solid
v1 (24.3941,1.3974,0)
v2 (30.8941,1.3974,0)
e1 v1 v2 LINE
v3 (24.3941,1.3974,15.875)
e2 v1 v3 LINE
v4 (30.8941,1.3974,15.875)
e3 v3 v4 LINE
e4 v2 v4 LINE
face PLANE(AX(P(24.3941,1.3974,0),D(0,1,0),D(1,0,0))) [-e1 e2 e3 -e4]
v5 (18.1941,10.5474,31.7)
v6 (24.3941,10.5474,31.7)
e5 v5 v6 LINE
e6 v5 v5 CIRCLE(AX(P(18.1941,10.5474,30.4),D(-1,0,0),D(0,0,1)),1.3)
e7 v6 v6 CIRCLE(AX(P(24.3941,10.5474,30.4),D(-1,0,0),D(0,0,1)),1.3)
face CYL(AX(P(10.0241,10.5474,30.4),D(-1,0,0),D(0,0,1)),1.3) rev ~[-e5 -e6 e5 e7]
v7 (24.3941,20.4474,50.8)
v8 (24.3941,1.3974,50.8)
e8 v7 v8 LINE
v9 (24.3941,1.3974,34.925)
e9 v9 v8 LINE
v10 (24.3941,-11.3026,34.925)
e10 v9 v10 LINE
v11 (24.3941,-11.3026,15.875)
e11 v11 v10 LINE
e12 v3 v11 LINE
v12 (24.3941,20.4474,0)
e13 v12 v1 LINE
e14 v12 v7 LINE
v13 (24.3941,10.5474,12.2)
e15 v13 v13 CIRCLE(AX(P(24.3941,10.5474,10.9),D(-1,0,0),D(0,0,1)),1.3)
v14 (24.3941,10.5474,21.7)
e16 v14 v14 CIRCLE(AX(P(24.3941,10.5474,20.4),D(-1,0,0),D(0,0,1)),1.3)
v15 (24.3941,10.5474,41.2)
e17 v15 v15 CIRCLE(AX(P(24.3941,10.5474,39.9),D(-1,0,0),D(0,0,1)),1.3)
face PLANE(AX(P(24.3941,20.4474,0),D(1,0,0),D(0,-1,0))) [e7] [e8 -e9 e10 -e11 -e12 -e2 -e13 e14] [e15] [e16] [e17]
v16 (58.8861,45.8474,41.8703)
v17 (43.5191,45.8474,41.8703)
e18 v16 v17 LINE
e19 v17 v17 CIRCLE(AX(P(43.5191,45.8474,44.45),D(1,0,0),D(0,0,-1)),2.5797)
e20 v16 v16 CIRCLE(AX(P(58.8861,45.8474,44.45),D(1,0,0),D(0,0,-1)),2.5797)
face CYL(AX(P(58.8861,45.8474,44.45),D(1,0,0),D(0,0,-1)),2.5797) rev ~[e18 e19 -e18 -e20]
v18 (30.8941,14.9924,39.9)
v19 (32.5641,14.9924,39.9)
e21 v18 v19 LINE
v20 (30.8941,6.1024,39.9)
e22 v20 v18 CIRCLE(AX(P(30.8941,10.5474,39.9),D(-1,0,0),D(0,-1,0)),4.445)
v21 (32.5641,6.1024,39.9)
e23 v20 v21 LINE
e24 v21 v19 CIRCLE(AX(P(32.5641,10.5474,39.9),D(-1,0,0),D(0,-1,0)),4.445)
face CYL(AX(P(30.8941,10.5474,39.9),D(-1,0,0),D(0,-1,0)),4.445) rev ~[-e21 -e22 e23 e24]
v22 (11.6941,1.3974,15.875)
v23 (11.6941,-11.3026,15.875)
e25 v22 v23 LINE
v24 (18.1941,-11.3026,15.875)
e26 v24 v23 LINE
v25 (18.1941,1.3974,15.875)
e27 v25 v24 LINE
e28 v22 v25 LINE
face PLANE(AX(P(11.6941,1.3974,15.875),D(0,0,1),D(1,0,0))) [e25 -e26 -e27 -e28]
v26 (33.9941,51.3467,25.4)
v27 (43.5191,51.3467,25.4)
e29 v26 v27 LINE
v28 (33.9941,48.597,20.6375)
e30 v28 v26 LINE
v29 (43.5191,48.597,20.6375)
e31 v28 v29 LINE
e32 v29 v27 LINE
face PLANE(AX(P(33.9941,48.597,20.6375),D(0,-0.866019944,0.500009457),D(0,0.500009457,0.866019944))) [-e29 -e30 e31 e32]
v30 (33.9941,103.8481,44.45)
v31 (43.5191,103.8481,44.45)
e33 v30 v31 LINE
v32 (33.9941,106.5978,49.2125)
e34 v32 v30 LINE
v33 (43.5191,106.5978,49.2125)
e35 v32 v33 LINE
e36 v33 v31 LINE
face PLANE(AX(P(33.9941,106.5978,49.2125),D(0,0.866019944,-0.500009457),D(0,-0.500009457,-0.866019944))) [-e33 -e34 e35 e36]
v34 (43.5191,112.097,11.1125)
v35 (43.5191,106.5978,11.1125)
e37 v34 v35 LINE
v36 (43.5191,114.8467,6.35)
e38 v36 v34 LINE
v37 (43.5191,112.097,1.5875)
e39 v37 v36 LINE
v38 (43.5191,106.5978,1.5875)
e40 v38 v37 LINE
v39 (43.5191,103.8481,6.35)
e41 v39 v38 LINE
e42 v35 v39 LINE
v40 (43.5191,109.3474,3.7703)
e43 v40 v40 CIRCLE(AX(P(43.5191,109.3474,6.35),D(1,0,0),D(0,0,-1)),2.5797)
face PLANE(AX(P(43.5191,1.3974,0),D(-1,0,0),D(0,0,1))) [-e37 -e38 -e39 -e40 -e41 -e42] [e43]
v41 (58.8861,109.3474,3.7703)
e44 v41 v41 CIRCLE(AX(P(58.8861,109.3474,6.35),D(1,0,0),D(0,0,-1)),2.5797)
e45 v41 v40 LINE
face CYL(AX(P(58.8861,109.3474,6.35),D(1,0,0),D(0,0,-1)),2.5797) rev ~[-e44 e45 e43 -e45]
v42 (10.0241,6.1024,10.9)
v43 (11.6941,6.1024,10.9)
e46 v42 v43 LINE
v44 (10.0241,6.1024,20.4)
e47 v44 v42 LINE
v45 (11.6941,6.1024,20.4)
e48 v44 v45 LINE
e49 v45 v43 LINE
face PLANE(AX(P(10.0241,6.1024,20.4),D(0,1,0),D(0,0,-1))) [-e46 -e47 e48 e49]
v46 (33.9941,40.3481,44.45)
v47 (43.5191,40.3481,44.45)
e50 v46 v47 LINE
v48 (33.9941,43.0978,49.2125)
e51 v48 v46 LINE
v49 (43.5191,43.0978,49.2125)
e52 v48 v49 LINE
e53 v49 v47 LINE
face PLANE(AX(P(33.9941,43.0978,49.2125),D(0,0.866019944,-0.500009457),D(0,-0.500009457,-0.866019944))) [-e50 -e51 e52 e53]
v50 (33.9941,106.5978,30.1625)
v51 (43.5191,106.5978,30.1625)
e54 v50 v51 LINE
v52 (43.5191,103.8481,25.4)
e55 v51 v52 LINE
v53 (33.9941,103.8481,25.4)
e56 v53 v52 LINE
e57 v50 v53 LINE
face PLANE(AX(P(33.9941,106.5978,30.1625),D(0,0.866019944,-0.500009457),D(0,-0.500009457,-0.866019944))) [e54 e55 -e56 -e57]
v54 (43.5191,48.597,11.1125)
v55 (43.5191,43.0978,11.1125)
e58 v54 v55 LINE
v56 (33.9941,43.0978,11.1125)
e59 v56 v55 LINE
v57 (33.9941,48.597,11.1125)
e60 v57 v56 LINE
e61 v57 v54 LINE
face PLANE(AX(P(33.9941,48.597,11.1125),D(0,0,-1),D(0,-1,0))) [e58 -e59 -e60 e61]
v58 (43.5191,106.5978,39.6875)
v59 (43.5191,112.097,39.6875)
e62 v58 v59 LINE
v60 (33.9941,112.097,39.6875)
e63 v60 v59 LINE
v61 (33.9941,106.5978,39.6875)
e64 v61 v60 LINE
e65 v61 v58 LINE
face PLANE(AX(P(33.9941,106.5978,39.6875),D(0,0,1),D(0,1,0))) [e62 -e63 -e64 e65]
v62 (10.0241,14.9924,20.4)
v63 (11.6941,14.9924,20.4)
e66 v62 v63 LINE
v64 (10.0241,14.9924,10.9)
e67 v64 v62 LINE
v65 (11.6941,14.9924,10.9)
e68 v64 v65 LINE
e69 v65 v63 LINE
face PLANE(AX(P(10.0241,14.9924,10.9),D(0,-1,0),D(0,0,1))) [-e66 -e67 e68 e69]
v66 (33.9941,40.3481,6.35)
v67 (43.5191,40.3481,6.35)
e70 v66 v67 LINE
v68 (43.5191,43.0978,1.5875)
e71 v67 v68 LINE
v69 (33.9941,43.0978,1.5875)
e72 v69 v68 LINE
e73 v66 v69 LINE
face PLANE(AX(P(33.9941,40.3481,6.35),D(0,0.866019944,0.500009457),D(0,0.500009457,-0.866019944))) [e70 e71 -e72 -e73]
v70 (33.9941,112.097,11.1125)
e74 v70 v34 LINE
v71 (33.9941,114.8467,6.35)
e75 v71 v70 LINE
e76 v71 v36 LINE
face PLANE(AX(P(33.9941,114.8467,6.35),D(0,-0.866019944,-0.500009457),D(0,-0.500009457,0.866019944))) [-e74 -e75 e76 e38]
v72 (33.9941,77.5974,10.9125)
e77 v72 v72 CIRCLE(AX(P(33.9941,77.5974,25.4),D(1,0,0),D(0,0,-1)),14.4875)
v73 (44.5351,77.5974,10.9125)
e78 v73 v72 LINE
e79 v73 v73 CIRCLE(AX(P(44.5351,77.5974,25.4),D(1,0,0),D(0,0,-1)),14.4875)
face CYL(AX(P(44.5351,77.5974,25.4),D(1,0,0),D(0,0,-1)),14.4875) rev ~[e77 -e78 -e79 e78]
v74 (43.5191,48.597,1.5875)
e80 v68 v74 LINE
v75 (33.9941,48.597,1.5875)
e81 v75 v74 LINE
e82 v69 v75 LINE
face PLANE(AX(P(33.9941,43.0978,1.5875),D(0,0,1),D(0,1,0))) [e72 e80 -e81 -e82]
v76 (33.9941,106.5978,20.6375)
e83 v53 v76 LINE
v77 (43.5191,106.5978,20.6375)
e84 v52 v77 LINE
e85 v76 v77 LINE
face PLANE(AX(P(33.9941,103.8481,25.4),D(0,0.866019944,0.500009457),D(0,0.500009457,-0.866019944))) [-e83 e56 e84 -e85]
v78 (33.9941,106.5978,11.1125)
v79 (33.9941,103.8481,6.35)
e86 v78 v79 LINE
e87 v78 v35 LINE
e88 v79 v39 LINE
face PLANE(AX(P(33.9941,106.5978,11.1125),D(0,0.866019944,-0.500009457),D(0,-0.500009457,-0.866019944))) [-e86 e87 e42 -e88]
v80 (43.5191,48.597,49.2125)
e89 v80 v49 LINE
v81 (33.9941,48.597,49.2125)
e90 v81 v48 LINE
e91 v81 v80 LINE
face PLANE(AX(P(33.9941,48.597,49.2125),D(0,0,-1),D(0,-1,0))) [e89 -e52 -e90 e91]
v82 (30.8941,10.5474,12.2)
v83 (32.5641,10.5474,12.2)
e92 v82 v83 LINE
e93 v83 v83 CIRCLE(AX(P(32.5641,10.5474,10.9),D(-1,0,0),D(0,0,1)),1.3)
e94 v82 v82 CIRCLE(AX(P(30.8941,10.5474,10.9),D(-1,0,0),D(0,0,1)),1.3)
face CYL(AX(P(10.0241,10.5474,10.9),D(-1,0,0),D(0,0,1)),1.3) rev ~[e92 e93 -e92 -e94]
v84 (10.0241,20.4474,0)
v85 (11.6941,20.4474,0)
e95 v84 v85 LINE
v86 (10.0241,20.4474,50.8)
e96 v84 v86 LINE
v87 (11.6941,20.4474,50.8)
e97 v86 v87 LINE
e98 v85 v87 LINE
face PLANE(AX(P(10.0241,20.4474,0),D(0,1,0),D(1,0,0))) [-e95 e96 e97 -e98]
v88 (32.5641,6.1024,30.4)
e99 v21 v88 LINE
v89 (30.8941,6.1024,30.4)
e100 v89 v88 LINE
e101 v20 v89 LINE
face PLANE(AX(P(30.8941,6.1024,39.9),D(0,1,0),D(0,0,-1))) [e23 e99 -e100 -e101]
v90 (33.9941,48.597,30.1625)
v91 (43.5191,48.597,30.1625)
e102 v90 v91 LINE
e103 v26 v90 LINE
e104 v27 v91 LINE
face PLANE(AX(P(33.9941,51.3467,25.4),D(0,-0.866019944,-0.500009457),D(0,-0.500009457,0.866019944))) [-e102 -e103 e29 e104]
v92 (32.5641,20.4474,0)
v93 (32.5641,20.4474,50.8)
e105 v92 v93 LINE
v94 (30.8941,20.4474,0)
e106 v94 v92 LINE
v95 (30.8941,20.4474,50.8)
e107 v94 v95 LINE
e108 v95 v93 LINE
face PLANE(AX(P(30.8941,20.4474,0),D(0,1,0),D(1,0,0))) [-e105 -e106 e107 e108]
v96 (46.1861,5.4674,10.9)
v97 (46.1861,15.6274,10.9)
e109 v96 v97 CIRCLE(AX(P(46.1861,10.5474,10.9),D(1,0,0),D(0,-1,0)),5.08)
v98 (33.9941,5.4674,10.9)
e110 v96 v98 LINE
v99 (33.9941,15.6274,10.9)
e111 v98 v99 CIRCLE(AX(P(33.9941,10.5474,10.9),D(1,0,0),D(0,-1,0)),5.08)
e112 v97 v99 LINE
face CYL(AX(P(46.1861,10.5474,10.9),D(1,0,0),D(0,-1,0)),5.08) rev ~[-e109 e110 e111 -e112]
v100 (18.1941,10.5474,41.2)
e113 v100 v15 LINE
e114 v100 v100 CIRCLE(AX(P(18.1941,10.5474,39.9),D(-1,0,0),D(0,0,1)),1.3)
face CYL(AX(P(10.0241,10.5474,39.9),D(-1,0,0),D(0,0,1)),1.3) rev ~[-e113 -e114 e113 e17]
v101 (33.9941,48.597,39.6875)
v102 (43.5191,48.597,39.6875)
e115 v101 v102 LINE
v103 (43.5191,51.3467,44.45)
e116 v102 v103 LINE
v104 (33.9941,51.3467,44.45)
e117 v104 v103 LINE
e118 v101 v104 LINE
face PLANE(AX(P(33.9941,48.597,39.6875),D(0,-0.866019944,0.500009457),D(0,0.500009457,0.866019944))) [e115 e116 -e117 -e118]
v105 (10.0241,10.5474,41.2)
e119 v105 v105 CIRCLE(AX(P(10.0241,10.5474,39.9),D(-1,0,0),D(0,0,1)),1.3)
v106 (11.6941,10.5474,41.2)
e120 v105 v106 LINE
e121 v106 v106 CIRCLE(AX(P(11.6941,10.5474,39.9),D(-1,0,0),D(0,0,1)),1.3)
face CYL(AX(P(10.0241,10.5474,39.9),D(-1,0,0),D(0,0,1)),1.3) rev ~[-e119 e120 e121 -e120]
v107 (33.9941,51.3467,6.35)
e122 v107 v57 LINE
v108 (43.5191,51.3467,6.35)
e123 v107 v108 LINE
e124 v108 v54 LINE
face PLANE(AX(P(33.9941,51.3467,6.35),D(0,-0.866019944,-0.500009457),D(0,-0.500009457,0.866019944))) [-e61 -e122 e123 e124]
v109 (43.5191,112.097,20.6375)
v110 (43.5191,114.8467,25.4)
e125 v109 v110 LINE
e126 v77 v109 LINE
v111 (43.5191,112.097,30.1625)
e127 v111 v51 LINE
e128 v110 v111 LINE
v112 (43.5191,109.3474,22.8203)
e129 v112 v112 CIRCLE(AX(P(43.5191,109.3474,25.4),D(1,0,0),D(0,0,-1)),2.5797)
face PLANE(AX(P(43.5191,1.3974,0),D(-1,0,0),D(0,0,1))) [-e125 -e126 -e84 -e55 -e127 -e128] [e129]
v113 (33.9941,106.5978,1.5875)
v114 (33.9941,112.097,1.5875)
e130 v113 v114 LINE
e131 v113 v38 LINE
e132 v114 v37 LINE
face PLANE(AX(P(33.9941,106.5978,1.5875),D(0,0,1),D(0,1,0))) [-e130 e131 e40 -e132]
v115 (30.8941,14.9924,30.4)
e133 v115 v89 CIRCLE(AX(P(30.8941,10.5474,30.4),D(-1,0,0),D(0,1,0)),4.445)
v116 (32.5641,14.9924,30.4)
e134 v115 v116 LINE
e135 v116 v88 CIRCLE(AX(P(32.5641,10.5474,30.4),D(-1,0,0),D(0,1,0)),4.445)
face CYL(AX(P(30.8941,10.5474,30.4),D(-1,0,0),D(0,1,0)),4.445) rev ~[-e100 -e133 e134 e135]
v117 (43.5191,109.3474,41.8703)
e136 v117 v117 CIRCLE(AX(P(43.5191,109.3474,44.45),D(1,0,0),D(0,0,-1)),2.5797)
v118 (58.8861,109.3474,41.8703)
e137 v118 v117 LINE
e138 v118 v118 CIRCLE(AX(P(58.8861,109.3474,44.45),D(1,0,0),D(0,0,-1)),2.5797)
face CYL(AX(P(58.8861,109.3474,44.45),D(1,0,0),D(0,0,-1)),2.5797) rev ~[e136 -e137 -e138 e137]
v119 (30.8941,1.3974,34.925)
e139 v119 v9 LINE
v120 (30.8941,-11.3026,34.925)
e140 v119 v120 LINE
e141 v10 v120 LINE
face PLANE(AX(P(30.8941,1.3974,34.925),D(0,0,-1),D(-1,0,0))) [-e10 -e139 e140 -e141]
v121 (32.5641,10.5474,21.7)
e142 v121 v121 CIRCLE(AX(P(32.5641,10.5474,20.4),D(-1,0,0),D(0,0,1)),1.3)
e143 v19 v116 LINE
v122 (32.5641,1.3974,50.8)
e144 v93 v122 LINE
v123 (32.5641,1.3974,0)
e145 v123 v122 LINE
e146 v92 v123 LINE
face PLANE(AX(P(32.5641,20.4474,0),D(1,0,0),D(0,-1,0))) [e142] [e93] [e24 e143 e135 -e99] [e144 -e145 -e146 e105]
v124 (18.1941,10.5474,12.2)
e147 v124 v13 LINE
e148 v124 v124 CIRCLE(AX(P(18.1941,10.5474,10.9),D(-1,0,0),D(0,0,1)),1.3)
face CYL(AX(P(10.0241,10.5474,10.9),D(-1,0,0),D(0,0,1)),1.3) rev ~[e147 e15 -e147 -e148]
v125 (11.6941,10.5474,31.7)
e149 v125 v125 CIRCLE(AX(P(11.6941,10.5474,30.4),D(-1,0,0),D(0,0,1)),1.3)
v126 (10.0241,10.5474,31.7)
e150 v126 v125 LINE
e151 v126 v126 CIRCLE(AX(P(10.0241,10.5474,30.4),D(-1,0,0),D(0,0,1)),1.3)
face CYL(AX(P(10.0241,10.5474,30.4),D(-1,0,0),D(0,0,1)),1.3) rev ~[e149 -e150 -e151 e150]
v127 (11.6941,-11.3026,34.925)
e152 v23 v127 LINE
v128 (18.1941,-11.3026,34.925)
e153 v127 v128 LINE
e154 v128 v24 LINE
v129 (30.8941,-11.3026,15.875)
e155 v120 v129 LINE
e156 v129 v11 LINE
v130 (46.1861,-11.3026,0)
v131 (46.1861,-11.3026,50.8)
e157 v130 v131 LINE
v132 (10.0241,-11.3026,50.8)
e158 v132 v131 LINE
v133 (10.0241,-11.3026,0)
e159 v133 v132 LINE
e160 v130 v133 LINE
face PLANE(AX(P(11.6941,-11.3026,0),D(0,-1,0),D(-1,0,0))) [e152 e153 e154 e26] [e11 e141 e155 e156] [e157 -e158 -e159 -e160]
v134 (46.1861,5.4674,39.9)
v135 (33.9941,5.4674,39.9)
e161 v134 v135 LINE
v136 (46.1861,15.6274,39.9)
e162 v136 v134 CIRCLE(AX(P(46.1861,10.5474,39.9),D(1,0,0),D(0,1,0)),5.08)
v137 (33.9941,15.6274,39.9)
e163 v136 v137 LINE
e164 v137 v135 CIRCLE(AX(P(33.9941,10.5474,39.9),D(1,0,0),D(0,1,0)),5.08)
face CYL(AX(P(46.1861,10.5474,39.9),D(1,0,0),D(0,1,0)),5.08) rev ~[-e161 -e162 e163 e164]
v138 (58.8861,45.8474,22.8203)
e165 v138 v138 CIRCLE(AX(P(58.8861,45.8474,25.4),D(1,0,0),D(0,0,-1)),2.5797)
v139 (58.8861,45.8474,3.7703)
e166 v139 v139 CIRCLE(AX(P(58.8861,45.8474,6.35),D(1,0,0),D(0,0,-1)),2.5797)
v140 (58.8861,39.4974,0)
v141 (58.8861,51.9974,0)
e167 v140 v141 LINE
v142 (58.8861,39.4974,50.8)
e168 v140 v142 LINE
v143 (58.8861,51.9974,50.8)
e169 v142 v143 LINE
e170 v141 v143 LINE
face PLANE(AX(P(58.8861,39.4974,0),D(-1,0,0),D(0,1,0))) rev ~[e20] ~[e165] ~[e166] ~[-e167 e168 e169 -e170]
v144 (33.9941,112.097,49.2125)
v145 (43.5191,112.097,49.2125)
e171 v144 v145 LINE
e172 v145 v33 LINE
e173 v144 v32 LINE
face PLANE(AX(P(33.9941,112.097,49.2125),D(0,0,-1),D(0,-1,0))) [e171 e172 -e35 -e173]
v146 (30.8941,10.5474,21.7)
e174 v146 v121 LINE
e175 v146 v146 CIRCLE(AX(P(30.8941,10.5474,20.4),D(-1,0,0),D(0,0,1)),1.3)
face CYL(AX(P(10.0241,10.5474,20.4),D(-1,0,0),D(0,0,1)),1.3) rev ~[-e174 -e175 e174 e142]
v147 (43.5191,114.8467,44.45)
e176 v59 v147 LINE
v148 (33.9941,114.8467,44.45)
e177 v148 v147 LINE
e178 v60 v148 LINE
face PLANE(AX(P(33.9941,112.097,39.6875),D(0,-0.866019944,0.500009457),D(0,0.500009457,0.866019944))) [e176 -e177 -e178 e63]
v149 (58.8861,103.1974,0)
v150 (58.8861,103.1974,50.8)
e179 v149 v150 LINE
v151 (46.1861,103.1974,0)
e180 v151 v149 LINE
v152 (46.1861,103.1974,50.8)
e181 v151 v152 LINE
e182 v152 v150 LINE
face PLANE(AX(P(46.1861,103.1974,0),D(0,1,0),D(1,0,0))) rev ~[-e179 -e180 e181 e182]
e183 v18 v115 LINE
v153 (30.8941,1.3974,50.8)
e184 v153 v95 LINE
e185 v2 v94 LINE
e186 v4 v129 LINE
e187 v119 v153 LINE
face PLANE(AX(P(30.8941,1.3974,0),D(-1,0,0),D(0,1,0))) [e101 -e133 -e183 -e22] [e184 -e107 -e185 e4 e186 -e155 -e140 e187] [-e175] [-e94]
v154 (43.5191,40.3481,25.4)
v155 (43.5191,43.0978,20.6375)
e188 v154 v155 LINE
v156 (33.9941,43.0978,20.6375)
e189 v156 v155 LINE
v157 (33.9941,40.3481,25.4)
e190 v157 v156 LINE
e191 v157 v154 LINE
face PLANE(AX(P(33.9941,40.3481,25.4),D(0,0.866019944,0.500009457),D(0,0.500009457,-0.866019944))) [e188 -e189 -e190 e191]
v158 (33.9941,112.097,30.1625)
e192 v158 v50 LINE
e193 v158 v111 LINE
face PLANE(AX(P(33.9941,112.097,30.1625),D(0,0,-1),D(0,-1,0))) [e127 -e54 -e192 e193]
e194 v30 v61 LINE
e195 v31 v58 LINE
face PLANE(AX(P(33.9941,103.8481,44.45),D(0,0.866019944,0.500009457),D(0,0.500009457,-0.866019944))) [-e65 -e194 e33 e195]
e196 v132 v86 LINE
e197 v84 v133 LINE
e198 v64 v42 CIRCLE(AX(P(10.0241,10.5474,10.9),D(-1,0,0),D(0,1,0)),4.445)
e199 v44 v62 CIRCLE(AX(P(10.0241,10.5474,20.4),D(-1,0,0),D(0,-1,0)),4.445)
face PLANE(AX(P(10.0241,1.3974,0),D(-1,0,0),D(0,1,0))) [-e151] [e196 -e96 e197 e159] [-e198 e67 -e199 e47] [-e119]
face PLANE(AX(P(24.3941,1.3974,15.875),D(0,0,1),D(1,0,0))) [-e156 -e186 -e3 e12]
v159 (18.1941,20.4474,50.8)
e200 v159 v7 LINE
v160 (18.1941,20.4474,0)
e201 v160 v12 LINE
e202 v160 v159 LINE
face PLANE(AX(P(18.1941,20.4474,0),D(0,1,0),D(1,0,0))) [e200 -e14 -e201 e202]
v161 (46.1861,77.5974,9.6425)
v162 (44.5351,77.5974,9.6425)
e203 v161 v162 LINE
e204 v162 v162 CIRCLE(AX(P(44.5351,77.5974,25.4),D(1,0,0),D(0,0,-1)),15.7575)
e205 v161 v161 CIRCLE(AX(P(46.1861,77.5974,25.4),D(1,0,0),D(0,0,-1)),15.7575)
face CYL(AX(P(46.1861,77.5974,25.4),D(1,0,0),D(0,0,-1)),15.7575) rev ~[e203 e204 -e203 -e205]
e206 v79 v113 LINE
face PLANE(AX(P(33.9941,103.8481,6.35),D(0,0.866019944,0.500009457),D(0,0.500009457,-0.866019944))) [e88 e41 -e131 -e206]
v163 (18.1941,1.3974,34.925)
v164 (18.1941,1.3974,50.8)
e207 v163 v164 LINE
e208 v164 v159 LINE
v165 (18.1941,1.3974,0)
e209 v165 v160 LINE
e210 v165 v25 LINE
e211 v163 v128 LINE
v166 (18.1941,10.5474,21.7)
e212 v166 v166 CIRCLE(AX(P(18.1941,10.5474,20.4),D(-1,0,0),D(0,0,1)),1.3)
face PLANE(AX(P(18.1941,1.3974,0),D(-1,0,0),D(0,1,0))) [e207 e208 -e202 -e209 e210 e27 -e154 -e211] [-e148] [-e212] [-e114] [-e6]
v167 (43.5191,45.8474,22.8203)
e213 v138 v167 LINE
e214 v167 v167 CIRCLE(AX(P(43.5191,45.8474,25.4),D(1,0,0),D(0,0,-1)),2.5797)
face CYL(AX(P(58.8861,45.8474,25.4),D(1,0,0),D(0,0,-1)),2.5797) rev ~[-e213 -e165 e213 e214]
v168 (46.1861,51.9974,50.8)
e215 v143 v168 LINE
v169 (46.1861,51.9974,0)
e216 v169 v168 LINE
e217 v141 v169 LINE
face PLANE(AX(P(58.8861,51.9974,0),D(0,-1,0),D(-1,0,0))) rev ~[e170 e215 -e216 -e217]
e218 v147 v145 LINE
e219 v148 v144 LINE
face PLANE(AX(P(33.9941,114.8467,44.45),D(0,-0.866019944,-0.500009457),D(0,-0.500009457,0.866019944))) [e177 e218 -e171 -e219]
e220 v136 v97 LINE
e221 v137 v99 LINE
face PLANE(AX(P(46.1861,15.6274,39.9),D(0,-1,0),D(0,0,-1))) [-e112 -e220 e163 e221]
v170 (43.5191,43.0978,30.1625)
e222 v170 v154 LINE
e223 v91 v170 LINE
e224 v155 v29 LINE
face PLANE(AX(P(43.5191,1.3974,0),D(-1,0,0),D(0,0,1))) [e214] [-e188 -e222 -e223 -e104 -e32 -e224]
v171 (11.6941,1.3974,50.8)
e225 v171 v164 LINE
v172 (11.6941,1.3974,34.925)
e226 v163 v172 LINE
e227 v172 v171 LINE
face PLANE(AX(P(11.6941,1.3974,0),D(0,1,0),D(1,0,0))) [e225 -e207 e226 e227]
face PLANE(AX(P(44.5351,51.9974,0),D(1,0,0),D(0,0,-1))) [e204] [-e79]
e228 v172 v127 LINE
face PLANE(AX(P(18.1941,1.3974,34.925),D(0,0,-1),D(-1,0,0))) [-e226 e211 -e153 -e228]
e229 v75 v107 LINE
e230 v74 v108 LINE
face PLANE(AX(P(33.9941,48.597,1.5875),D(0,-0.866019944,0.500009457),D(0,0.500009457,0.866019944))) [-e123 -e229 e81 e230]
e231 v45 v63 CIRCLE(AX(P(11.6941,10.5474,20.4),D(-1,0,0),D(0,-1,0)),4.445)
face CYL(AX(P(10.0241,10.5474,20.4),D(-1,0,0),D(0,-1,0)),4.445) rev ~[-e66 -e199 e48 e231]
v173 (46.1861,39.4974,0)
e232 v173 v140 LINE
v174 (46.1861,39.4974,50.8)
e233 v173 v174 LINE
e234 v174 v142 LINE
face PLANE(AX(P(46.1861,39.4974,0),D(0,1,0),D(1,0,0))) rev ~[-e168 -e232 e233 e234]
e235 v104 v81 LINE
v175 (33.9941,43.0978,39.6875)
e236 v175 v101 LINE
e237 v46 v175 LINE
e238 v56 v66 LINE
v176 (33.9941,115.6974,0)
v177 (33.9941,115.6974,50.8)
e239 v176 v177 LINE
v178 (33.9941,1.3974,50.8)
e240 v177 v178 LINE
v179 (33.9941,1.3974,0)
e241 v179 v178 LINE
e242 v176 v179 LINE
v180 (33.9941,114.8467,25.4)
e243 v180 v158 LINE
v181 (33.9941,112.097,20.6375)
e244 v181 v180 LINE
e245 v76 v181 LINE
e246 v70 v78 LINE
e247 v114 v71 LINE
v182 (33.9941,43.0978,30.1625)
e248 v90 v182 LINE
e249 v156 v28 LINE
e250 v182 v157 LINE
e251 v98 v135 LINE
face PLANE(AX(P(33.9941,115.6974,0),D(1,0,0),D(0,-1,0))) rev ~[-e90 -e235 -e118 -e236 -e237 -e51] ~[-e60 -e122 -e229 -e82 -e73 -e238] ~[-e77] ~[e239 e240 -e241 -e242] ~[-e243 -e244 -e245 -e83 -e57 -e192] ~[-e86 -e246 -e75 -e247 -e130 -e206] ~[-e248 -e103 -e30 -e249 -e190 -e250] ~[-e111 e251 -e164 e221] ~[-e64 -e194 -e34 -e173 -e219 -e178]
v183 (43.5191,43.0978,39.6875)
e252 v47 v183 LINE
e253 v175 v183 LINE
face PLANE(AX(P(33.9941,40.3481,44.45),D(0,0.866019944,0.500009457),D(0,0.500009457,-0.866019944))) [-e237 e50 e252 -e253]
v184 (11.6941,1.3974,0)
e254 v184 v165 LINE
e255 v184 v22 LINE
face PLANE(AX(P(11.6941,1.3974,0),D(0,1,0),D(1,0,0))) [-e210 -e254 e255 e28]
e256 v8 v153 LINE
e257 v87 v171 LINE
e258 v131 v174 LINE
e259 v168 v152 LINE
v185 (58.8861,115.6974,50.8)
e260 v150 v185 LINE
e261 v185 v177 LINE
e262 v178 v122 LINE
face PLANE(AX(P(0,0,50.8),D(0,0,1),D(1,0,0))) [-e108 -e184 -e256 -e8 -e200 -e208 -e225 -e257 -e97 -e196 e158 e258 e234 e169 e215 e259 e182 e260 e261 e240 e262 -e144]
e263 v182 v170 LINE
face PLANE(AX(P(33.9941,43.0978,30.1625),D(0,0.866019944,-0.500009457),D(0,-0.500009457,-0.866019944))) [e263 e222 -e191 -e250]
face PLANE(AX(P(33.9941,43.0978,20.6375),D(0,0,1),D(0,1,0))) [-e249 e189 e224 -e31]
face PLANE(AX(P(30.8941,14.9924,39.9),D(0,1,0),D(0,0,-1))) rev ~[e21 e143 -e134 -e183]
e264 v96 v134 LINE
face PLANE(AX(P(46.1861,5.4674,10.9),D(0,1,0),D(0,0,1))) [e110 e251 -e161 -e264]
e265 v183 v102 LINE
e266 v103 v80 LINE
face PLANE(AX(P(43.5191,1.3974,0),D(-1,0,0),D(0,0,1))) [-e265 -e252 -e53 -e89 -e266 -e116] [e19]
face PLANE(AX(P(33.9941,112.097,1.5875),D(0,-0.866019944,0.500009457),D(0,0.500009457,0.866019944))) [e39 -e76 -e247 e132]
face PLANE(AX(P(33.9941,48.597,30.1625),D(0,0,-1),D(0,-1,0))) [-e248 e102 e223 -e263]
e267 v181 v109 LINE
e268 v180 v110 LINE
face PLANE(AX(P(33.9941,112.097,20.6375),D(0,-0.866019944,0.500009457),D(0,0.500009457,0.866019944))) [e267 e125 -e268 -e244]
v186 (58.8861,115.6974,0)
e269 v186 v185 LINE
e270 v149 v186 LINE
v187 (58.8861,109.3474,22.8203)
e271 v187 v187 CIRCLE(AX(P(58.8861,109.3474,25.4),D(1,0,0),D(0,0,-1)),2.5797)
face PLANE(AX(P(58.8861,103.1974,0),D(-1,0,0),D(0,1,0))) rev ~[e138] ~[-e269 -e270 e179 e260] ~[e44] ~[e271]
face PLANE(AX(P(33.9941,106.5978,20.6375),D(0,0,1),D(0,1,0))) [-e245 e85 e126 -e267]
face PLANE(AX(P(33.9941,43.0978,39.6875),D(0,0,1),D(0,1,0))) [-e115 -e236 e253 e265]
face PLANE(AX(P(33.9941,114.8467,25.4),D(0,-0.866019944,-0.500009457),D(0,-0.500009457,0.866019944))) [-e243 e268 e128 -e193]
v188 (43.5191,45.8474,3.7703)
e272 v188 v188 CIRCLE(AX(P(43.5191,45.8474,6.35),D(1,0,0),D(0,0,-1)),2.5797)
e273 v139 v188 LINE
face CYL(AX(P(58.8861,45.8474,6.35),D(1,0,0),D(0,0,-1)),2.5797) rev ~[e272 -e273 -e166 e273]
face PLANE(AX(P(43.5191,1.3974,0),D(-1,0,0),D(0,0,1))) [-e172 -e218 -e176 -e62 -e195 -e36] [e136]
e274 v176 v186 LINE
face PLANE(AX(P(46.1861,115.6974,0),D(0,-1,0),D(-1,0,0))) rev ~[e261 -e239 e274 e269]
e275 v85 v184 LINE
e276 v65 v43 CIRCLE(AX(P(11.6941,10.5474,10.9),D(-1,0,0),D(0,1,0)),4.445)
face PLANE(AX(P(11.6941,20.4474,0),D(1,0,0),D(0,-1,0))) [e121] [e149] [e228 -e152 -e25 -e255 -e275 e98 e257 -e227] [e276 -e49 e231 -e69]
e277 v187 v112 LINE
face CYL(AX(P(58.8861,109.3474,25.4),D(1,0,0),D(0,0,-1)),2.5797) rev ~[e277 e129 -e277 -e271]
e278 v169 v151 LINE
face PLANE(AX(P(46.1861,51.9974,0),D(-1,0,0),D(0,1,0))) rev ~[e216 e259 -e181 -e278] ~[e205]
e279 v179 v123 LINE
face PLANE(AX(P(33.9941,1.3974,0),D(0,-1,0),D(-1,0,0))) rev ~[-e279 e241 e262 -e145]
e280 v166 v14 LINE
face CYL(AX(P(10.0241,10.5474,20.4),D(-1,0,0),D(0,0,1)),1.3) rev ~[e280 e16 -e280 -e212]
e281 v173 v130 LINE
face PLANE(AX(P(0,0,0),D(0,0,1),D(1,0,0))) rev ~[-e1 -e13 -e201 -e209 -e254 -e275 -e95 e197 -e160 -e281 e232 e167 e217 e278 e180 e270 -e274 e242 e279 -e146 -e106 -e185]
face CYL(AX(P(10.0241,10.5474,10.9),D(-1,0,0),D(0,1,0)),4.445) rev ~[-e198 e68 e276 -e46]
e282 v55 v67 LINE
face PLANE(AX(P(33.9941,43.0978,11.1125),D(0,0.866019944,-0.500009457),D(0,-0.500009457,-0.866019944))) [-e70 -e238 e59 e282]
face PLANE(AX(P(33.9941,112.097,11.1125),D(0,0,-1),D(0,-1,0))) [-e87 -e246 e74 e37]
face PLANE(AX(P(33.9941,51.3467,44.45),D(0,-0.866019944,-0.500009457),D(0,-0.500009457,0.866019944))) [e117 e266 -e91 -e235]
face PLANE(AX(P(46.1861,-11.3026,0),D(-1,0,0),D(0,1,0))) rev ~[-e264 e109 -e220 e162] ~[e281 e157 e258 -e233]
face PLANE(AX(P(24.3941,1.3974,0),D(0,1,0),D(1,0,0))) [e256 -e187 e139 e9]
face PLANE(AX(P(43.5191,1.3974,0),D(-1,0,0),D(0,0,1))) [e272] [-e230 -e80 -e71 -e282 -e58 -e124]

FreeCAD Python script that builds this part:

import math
import FreeCAD as App
import Part
import Sketcher

V = App.Vector
Q = App.Units.Quantity


def add_polygon(sketch, points):
    """Adds a closed chain of lines whose ends are joined by coincident constraints."""
    first, n = sketch.GeometryCount, len(points)
    for a, b in zip(points, points[1:] + points[:1]):
        sketch.addGeometry(Part.LineSegment(App.Vector(*a, 0), App.Vector(*b, 0)), False)
    for i in range(n):
        sketch.addConstraint(Sketcher.Constraint("Coincident", first + i, 2, first + (i + 1) % n, 1))

doc = App.newDocument("Part")
body = doc.addObject("PartDesign::Body", "Body")

sketch1 = doc.addObject("Sketcher::SketchObject", "Sketch")
body.addObject(sketch1)
sketch1.AttachmentSupport = (doc.XY_Plane, [""])
sketch1.MapMode = "FlatFace"
add_polygon(sketch1, [(11.7, 20.4), (10, 20.4), (10, -11.3), (46.2, -11.3), (46.2, 39.5), (58.9, 39.5), (58.9, 52), (46.2, 52), (46.2, 103.2), (58.9, 103.2), (58.9, 115.7), (34, 115.7), (34, 1.4), (32.6, 1.4), (32.6, 20.4), (30.9, 20.4), (30.9, 1.4), (24.4, 1.4), (24.4, 20.4), (18.2, 20.4), (18.2, 1.4), (11.7, 1.4)])
sketch1.addConstraint(Sketcher.Constraint("Horizontal", 0))
sketch1.addConstraint(Sketcher.Constraint("Vertical", 1))
sketch1.addConstraint(Sketcher.Constraint("Horizontal", 2))
sketch1.addConstraint(Sketcher.Constraint("Vertical", 3))
sketch1.addConstraint(Sketcher.Constraint("Horizontal", 4))
sketch1.addConstraint(Sketcher.Constraint("Vertical", 5))
sketch1.addConstraint(Sketcher.Constraint("Horizontal", 6))
sketch1.addConstraint(Sketcher.Constraint("Vertical", 7))
sketch1.addConstraint(Sketcher.Constraint("Horizontal", 8))
sketch1.addConstraint(Sketcher.Constraint("Vertical", 9))
sketch1.addConstraint(Sketcher.Constraint("Horizontal", 10))
sketch1.addConstraint(Sketcher.Constraint("Vertical", 11))
sketch1.addConstraint(Sketcher.Constraint("Horizontal", 12))
sketch1.addConstraint(Sketcher.Constraint("Vertical", 13))
sketch1.addConstraint(Sketcher.Constraint("Horizontal", 14))
sketch1.addConstraint(Sketcher.Constraint("Vertical", 15))
sketch1.addConstraint(Sketcher.Constraint("Horizontal", 16))
sketch1.addConstraint(Sketcher.Constraint("Vertical", 17))
sketch1.addConstraint(Sketcher.Constraint("Horizontal", 18))
sketch1.addConstraint(Sketcher.Constraint("Vertical", 19))
sketch1.addConstraint(Sketcher.Constraint("Horizontal", 20))
sketch1.addConstraint(Sketcher.Constraint("Vertical", 21))
sketch1.addConstraint(Sketcher.Constraint("Horizontal", 0, 2, 13, 2))
sketch1.addConstraint(Sketcher.Constraint("Horizontal", 12, 2, 15, 2))
sketch1.addConstraint(Sketcher.Constraint("Horizontal", 14, 2, 17, 2))
sketch1.addConstraint(Sketcher.Constraint("Horizontal", 16, 2, 19, 2))
sketch1.addConstraint(Sketcher.Constraint("Vertical", 3, 2, 6, 2))
sketch1.addConstraint(Sketcher.Constraint("Vertical", 5, 2, 8, 2))
sketch1.addConstraint(Sketcher.Constraint("Equal", 0, 14))
sketch1.addConstraint(Sketcher.Constraint("Equal", 16, 20))
sketch1.addConstraint(Sketcher.Constraint("Equal", 5, 9))
sketch1.addConstraint(Sketcher.Constraint("DistanceX", 4, 1, 4, 2, Q("0.5 in")))
sketch1.addConstraint(Sketcher.Constraint("DistanceY", 4, 2, 9, 2, Q("3 in")))
sketch1.addConstraint(Sketcher.Constraint("DistanceY", 2, 2, 11, 2, Q("0.5 in")))
sketch1.addConstraint(Sketcher.Constraint("DistanceX", 18, 2, 14, 2, Q("0.5 in")))
sketch1.addConstraint(Sketcher.Constraint("DistanceY", 3, 1, 3, 2, Q("2 in")))
sketch1.addConstraint(Sketcher.Constraint("DistanceX", 10, 2, 7, 2, Q("0.48 in")))
sketch1.addConstraint(Sketcher.Constraint("DistanceX", 16, 2, 16, 1, Q("0.2559 in")))
sketch1.addConstraint(Sketcher.Constraint("DistanceX", 0, 2, 0, 1, Q("1.67 mm")))
sketch1.addConstraint(Sketcher.Constraint("DistanceY", 1, 2, 1, 1, Q("1.25 in")))
sketch1.addConstraint(Sketcher.Constraint("DistanceY", 5, 1, 5, 2, Q("12.5 mm")))
sketch1.addConstraint(Sketcher.Constraint("DistanceX", 2, 1, 2, 2, Q("1.4237 in")))
sketch1.addConstraint(Sketcher.Constraint("DistanceY", -1, 1, 7, 2, Q("4.0629 in")))
sketch1.addConstraint(Sketcher.Constraint("DistanceX", -1, 1, 14, 2, Q("1.2163 in")))
pad1 = doc.addObject("PartDesign::Pad", "Pad")
body.addObject(pad1)
pad1.Profile = sketch1
pad1.Length = Q("2 in")

sketch2 = doc.addObject("Sketcher::SketchObject", "Sketch001")
body.addObject(sketch2)
sketch2.AttachmentSupport = (doc.YZ_Plane, [""])
sketch2.MapMode = "FlatFace"
sketch2.AttachmentOffset = App.Placement(V(0, 0, 46.1861), App.Rotation())
sketch2.addGeometry(Part.Circle(V(78, 25, 0), V(0, 0, 1), 16), False)
sketch2.addConstraint(Sketcher.Constraint("DistanceY", -1, 1, 0, 3, Q("1 in")))
sketch2.addConstraint(Sketcher.Constraint("Diameter", 0, Q("31.515 mm")))
sketch2.addConstraint(Sketcher.Constraint("DistanceX", -1, 1, 0, 3, Q("77.5974 mm")))
pocket1 = doc.addObject("PartDesign::Pocket", "Pocket")
body.addObject(pocket1)
pocket1.Profile = sketch2
pocket1.Length = Q("0.065 in")

sketch3 = doc.addObject("Sketcher::SketchObject", "Sketch002")
body.addObject(sketch3)
sketch3.AttachmentSupport = (doc.YZ_Plane, [""])
sketch3.MapMode = "FlatFace"
sketch3.AttachmentOffset = App.Placement(V(0, 0, 44.5351), App.Rotation())
sketch3.addGeometry(Part.Circle(V(78, 25, 0), V(0, 0, 1), 14), False)
sketch3.addConstraint(Sketcher.Constraint("Diameter", 0, Q("28.975 mm")))
sketch3.addConstraint(Sketcher.Constraint("DistanceY", -1, 1, 0, 3, Q("1 in")))
sketch3.addConstraint(Sketcher.Constraint("DistanceX", -1, 1, 0, 3, Q("77.5974 mm")))
pocket2 = doc.addObject("PartDesign::Pocket", "Pocket001")
body.addObject(pocket2)
pocket2.Profile = sketch3
pocket2.Type = "ThroughAll"

sketch4 = doc.addObject("Sketcher::SketchObject", "Sketch003")
body.addObject(sketch4)
sketch4.AttachmentSupport = (doc.YZ_Plane, [""])
sketch4.MapMode = "FlatFace"
sketch4.AttachmentOffset = App.Placement(V(0, 0, 10.0241), App.Rotation())
sketch4.addGeometry(Part.Circle(V(10.5, 10.9, 0), V(0, 0, 1), 1.3), False)
sketch4.addGeometry(Part.Circle(V(10.5, 20.4, 0), V(0, 0, 1), 1.3), False)
sketch4.addGeometry(Part.Circle(V(10.5, 30.4, 0), V(0, 0, 1), 1.3), False)
sketch4.addGeometry(Part.Circle(V(10.5, 39.9, 0), V(0, 0, 1), 1.3), False)
sketch4.addConstraint(Sketcher.Constraint("Equal", 0, 1))
sketch4.addConstraint(Sketcher.Constraint("Equal", 1, 2))
sketch4.addConstraint(Sketcher.Constraint("Equal", 2, 3))
sketch4.addConstraint(Sketcher.Constraint("Vertical", 0, 3, 1, 3))
sketch4.addConstraint(Sketcher.Constraint("Vertical", 1, 3, 2, 3))
sketch4.addConstraint(Sketcher.Constraint("Vertical", 2, 3, 3, 3))
sketch4.addConstraint(Sketcher.Constraint("Diameter", 0, Q("2.6 mm")))
sketch4.addConstraint(Sketcher.Constraint("DistanceY", 0, 3, 1, 3, Q("9.5 mm")))
sketch4.addConstraint(Sketcher.Constraint("DistanceY", 2, 3, 3, 3, Q("9.5 mm")))
sketch4.addConstraint(Sketcher.Constraint("DistanceY", 1, 3, 2, 3, Q("0.3937 in")))
sketch4.addConstraint(Sketcher.Constraint("DistanceX", -1, 1, 0, 3, Q("10.5474 mm")))
sketch4.addConstraint(Sketcher.Constraint("DistanceY", -1, 1, 0, 3, Q("10.9 mm")))
pocket3 = doc.addObject("PartDesign::Pocket", "Pocket002")
body.addObject(pocket3)
pocket3.Profile = sketch4
pocket3.Type = "ThroughAll"
pocket3.Reversed = True

sketch5 = doc.addObject("Sketcher::SketchObject", "Sketch004")
body.addObject(sketch5)
sketch5.AttachmentSupport = (doc.YZ_Plane, [""])
sketch5.MapMode = "FlatFace"
sketch5.AttachmentOffset = App.Placement(V(0, 0, 1.2163031 * 25.4), App.Rotation())
sketch5.addGeometry(Part.ArcOfCircle(Part.Circle(V(10.5, 39.9, 0), V(0, 0, 1), 4.4), math.radians(0), math.radians(180)), False)
sketch5.addGeometry(Part.LineSegment(V(15, 39.9, 0), V(15, 30.4, 0)), False)
sketch5.addGeometry(Part.ArcOfCircle(Part.Circle(V(10.5, 30.4, 0), V(0, 0, 1), 4.4), math.radians(180), math.radians(360)), False)
sketch5.addGeometry(Part.LineSegment(V(6.1, 30.4, 0), V(6.1, 39.9, 0)), False)
sketch5.addGeometry(Part.Circle(V(10.5, 39.9, 0), V(0, 0, 1), 1.3), False)
sketch5.addGeometry(Part.Circle(V(10.5, 30.4, 0), V(0, 0, 1), 1.3), False)
sketch5.addConstraint(Sketcher.Constraint("Tangent", 0, 1, 1, 1))
sketch5.addConstraint(Sketcher.Constraint("Tangent", 1, 2, 2, 2))
sketch5.addConstraint(Sketcher.Constraint("Tangent", 2, 1, 3, 1))
sketch5.addConstraint(Sketcher.Constraint("Tangent", 3, 2, 0, 2))
sketch5.addConstraint(Sketcher.Constraint("Vertical", 1))
sketch5.addConstraint(Sketcher.Constraint("Vertical", 3))
sketch5.addConstraint(Sketcher.Constraint("Coincident", 4, 3, 0, 3))
sketch5.addConstraint(Sketcher.Constraint("Coincident", 5, 3, 2, 3))
sketch5.addConstraint(Sketcher.Constraint("Equal", 4, 5))
sketch5.addConstraint(Sketcher.Constraint("Radius", 0, Q("0.175 in")))
sketch5.addConstraint(Sketcher.Constraint("Diameter", 4, Q("2.6 mm")))
sketch5.addConstraint(Sketcher.Constraint("DistanceY", 1, 2, 1, 1, Q("9.5 mm")))
sketch5.addConstraint(Sketcher.Constraint("DistanceX", -1, 1, 0, 3, Q("10.5474 mm")))
sketch5.addConstraint(Sketcher.Constraint("DistanceY", -1, 1, 0, 3, Q("39.9 mm")))
pocket4 = doc.addObject("PartDesign::Pocket", "Pocket003")
body.addObject(pocket4)
pocket4.Profile = sketch5
pocket4.Length = 1.67
pocket4.Reversed = True

sketch6 = doc.addObject("Sketcher::SketchObject", "Sketch005")
body.addObject(sketch6)
sketch6.AttachmentSupport = (doc.YZ_Plane, [""])
sketch6.MapMode = "FlatFace"
sketch6.AttachmentOffset = App.Placement(V(0, 0, 10.0241), App.Rotation())
sketch6.addGeometry(Part.ArcOfCircle(Part.Circle(V(10.5, 20.4, 0), V(0, 0, 1), 4.4), math.radians(0), math.radians(180)), False)
sketch6.addGeometry(Part.LineSegment(V(15, 20.4, 0), V(15, 10.9, 0)), False)
sketch6.addGeometry(Part.ArcOfCircle(Part.Circle(V(10.5, 10.9, 0), V(0, 0, 1), 4.4), math.radians(180), math.radians(360)), False)
sketch6.addGeometry(Part.LineSegment(V(6.1, 10.9, 0), V(6.1, 20.4, 0)), False)
sketch6.addGeometry(Part.Circle(V(10.5, 20.4, 0), V(0, 0, 1), 1.3), False)
sketch6.addGeometry(Part.Circle(V(10.5, 10.9, 0), V(0, 0, 1), 1.3), False)
sketch6.addConstraint(Sketcher.Constraint("Tangent", 0, 1, 1, 1))
sketch6.addConstraint(Sketcher.Constraint("Tangent", 1, 2, 2, 2))
sketch6.addConstraint(Sketcher.Constraint("Tangent", 2, 1, 3, 1))
sketch6.addConstraint(Sketcher.Constraint("Tangent", 3, 2, 0, 2))
sketch6.addConstraint(Sketcher.Constraint("Vertical", 1))
sketch6.addConstraint(Sketcher.Constraint("Vertical", 3))
sketch6.addConstraint(Sketcher.Constraint("Coincident", 4, 3, 0, 3))
sketch6.addConstraint(Sketcher.Constraint("Coincident", 5, 3, 2, 3))
sketch6.addConstraint(Sketcher.Constraint("Equal", 4, 5))
sketch6.addConstraint(Sketcher.Constraint("Radius", 0, Q("0.175 in")))
sketch6.addConstraint(Sketcher.Constraint("Diameter", 4, Q("2.6 mm")))
sketch6.addConstraint(Sketcher.Constraint("DistanceY", 1, 2, 1, 1, Q("9.5 mm")))
sketch6.addConstraint(Sketcher.Constraint("DistanceX", -1, 1, 0, 3, Q("10.5474 mm")))
sketch6.addConstraint(Sketcher.Constraint("DistanceY", -1, 1, 0, 3, Q("20.4 mm")))
pocket5 = doc.addObject("PartDesign::Pocket", "Pocket004")
body.addObject(pocket5)
pocket5.Profile = sketch6
pocket5.Length = 1.67
pocket5.Reversed = True

sketch7 = doc.addObject("Sketcher::SketchObject", "Sketch006")
body.addObject(sketch7)
sketch7.AttachmentSupport = (doc.YZ_Plane, [""])
sketch7.MapMode = "FlatFace"
sketch7.AttachmentOffset = App.Placement(V(0, 0, 46.1861), App.Rotation())
sketch7.addGeometry(Part.ArcOfCircle(Part.Circle(V(10.5, 10.9, 0), V(0, 0, 1), 5.1), math.radians(180), math.radians(360)), False)
sketch7.addGeometry(Part.LineSegment(V(15.6, 10.9, 0), V(15.6, 39.9, 0)), False)
sketch7.addGeometry(Part.ArcOfCircle(Part.Circle(V(10.5, 39.9, 0), V(0, 0, 1), 5.1), math.radians(0), math.radians(180)), False)
sketch7.addGeometry(Part.LineSegment(V(5.5, 39.9, 0), V(5.5, 10.9, 0)), False)
sketch7.addGeometry(Part.Circle(V(10.5, 10.9, 0), V(0, 0, 1), 1.3), False)
sketch7.addGeometry(Part.Circle(V(10.5, 39.9, 0), V(0, 0, 1), 1.3), False)
sketch7.addConstraint(Sketcher.Constraint("Tangent", 0, 2, 1, 1))
sketch7.addConstraint(Sketcher.Constraint("Tangent", 1, 2, 2, 1))
sketch7.addConstraint(Sketcher.Constraint("Tangent", 2, 2, 3, 1))
sketch7.addConstraint(Sketcher.Constraint("Tangent", 3, 2, 0, 1))
sketch7.addConstraint(Sketcher.Constraint("Vertical", 1))
sketch7.addConstraint(Sketcher.Constraint("Vertical", 3))
sketch7.addConstraint(Sketcher.Constraint("Coincident", 4, 3, 0, 3))
sketch7.addConstraint(Sketcher.Constraint("Coincident", 5, 3, 2, 3))
sketch7.addConstraint(Sketcher.Constraint("Equal", 4, 5))
sketch7.addConstraint(Sketcher.Constraint("Radius", 0, Q("0.2 in")))
sketch7.addConstraint(Sketcher.Constraint("Diameter", 4, Q("2.6 mm")))
sketch7.addConstraint(Sketcher.Constraint("DistanceY", 1, 1, 1, 2, Q("29 mm")))
sketch7.addConstraint(Sketcher.Constraint("DistanceX", -1, 1, 0, 3, Q("10.5474 mm")))
sketch7.addConstraint(Sketcher.Constraint("DistanceY", -1, 1, 0, 3, Q("10.9 mm")))
pocket6 = doc.addObject("PartDesign::Pocket", "Pocket005")
body.addObject(pocket6)
pocket6.Profile = sketch7
pocket6.Length = Q("0.48 in")

sketch8 = doc.addObject("Sketcher::SketchObject", "Sketch007")
body.addObject(sketch8)
sketch8.AttachmentSupport = (doc.XZ_Plane, [""])
sketch8.MapMode = "FlatFace"
sketch8.AttachmentOffset = App.Placement(V(0, 0, -1.3974), App.Rotation())
add_polygon(sketch8, [(24, 35), (31, 35), (31, 16), (24, 16)])
add_polygon(sketch8, [(12, 35), (18, 35), (18, 16), (12, 16)])
sketch8.addConstraint(Sketcher.Constraint("Horizontal", 0))
sketch8.addConstraint(Sketcher.Constraint("Vertical", 1))
sketch8.addConstraint(Sketcher.Constraint("Horizontal", 2))
sketch8.addConstraint(Sketcher.Constraint("Vertical", 3))
sketch8.addConstraint(Sketcher.Constraint("Horizontal", 4))
sketch8.addConstraint(Sketcher.Constraint("Vertical", 5))
sketch8.addConstraint(Sketcher.Constraint("Horizontal", 6))
sketch8.addConstraint(Sketcher.Constraint("Vertical", 7))
sketch8.addConstraint(Sketcher.Constraint("Horizontal", 3, 2, 4, 2))
sketch8.addConstraint(Sketcher.Constraint("Horizontal", 2, 2, 5, 2))
sketch8.addConstraint(Sketcher.Constraint("Equal", 2, 4))
sketch8.addConstraint(Sketcher.Constraint("DistanceY", 1, 2, 1, 1, Q("0.75 in")))
sketch8.addConstraint(Sketcher.Constraint("DistanceX", 4, 2, 0, 2, Q("0.5 in")))
sketch8.addConstraint(Sketcher.Constraint("DistanceX", 0, 1, 0, 2, Q("0.2559 in")))
sketch8.addConstraint(Sketcher.Constraint("DistanceY", -1, 1, 0, 2, Q("1.375 in")))
sketch8.addConstraint(Sketcher.Constraint("DistanceX", -1, 1, 0, 2, Q("1.2163 in")))
pocket7 = doc.addObject("PartDesign::Pocket", "Pocket006")
body.addObject(pocket7)
pocket7.Profile = sketch8
pocket7.Type = "ThroughAll"
pocket7.Reversed = True

sketch9 = doc.addObject("Sketcher::SketchObject", "Sketch008")
body.addObject(sketch9)
sketch9.AttachmentSupport = (doc.YZ_Plane, [""])
sketch9.MapMode = "FlatFace"
sketch9.AttachmentOffset = App.Placement(V(0, 0, 58.8861), App.Rotation())
sketch9.addGeometry(Part.Circle(V(45.8, 6.3, 0), V(0, 0, 1), 2.6), False)
sketch9.addGeometry(Part.Circle(V(109.3, 6.3, 0), V(0, 0, 1), 2.6), False)
sketch9.addGeometry(Part.Circle(V(45.8, 25.4, 0), V(0, 0, 1), 2.6), False)
sketch9.addGeometry(Part.Circle(V(109.3, 25.4, 0), V(0, 0, 1), 2.6), False)
sketch9.addGeometry(Part.Circle(V(45.8, 44.5, 0), V(0, 0, 1), 2.6), False)
sketch9.addGeometry(Part.Circle(V(109.3, 44.5, 0), V(0, 0, 1), 2.6), False)
sketch9.addConstraint(Sketcher.Constraint("Equal", 0, 1))
sketch9.addConstraint(Sketcher.Constraint("Equal", 1, 2))
sketch9.addConstraint(Sketcher.Constraint("Equal", 2, 3))
sketch9.addConstraint(Sketcher.Constraint("Equal", 3, 4))
sketch9.addConstraint(Sketcher.Constraint("Equal", 4, 5))
sketch9.addConstraint(Sketcher.Constraint("Horizontal", 0, 3, 1, 3))
sketch9.addConstraint(Sketcher.Constraint("Horizontal", 2, 3, 3, 3))
sketch9.addConstraint(Sketcher.Constraint("Horizontal", 4, 3, 5, 3))
sketch9.addConstraint(Sketcher.Constraint("Vertical", 0, 3, 2, 3))
sketch9.addConstraint(Sketcher.Constraint("Vertical", 1, 3, 3, 3))
sketch9.addConstraint(Sketcher.Constraint("Vertical", 2, 3, 4, 3))
sketch9.addConstraint(Sketcher.Constraint("Vertical", 3, 3, 5, 3))
sketch9.addConstraint(Sketcher.Constraint("Diameter", 0, Q("0.203126 in")))
sketch9.addConstraint(Sketcher.Constraint("DistanceY", -1, 1, 2, 3, Q("1 in")))
sketch9.addConstraint(Sketcher.Constraint("DistanceX", 0, 3, 1, 3, Q("2.5 in")))
sketch9.addConstraint(Sketcher.Constraint("DistanceY", 0, 3, 2, 3, Q("0.75 in")))
sketch9.addConstraint(Sketcher.Constraint("DistanceY", 2, 3, 4, 3, Q("0.75 in")))
sketch9.addConstraint(Sketcher.Constraint("DistanceX", -1, 1, 0, 3, Q("45.8474 mm")))
pocket8 = doc.addObject("PartDesign::Pocket", "Pocket007")
body.addObject(pocket8)
pocket8.Profile = sketch9
pocket8.Type = "ThroughAll"

sketch10 = doc.addObject("Sketcher::SketchObject", "Sketch009")
body.addObject(sketch10)
sketch10.AttachmentSupport = (doc.YZ_Plane, [""])
sketch10.MapMode = "FlatFace"
sketch10.AttachmentOffset = App.Placement(V(0, 0, 33.9941), App.Rotation())
add_polygon(sketch10, [(104, 44), (107, 49), (112, 49), (115, 44), (112, 40), (107, 40)])
add_polygon(sketch10, [(104, 25), (107, 30), (112, 30), (115, 25), (112, 21), (107, 21)])
add_polygon(sketch10, [(104, 6), (107, 11), (112, 11), (115, 6), (112, 2), (107, 2)])
add_polygon(sketch10, [(40, 44), (43, 49), (49, 49), (51, 44), (49, 40), (43, 40)])
add_polygon(sketch10, [(40, 25), (43, 30), (49, 30), (51, 25), (49, 21), (43, 21)])
add_polygon(sketch10, [(40, 6), (43, 11), (49, 11), (51, 6), (49, 2), (43, 2)])
sketch10.addConstraint(Sketcher.Constraint("Horizontal", 1))
sketch10.addConstraint(Sketcher.Constraint("Horizontal", 4))
sketch10.addConstraint(Sketcher.Constraint("Horizontal", 7))
sketch10.addConstraint(Sketcher.Constraint("Horizontal", 10))
sketch10.addConstraint(Sketcher.Constraint("Horizontal", 13))
sketch10.addConstraint(Sketcher.Constraint("Horizontal", 16))
sketch10.addConstraint(Sketcher.Constraint("Horizontal", 19))
sketch10.addConstraint(Sketcher.Constraint("Horizontal", 22))
sketch10.addConstraint(Sketcher.Constraint("Horizontal", 25))
sketch10.addConstraint(Sketcher.Constraint("Horizontal", 28))
sketch10.addConstraint(Sketcher.Constraint("Horizontal", 31))
sketch10.addConstraint(Sketcher.Constraint("Horizontal", 34))
sketch10.addConstraint(Sketcher.Constraint("Parallel", 0, 3))
sketch10.addConstraint(Sketcher.Constraint("Parallel", 2, 5))
sketch10.addConstraint(Sketcher.Constraint("Parallel", 3, 6))
sketch10.addConstraint(Sketcher.Constraint("Parallel", 5, 8))
sketch10.addConstraint(Sketcher.Constraint("Parallel", 6, 9))
sketch10.addConstraint(Sketcher.Constraint("Parallel", 8, 11))
sketch10.addConstraint(Sketcher.Constraint("Parallel", 9, 12))
sketch10.addConstraint(Sketcher.Constraint("Parallel", 11, 14))
sketch10.addConstraint(Sketcher.Constraint("Parallel", 12, 15))
sketch10.addConstraint(Sketcher.Constraint("Parallel", 14, 17))
sketch10.addConstraint(Sketcher.Constraint("Parallel", 15, 18))
sketch10.addConstraint(Sketcher.Constraint("Parallel", 17, 20))
sketch10.addConstraint(Sketcher.Constraint("Parallel", 18, 21))
sketch10.addConstraint(Sketcher.Constraint("Parallel", 20, 23))
sketch10.addConstraint(Sketcher.Constraint("Parallel", 21, 24))
sketch10.addConstraint(Sketcher.Constraint("Parallel", 23, 26))
sketch10.addConstraint(Sketcher.Constraint("Parallel", 24, 27))
sketch10.addConstraint(Sketcher.Constraint("Parallel", 26, 29))
sketch10.addConstraint(Sketcher.Constraint("Parallel", 27, 30))
sketch10.addConstraint(Sketcher.Constraint("Parallel", 29, 32))
sketch10.addConstraint(Sketcher.Constraint("Parallel", 30, 33))
sketch10.addConstraint(Sketcher.Constraint("Parallel", 32, 35))
sketch10.addConstraint(Sketcher.Constraint("Horizontal", 2, 2, 5, 2))
sketch10.addConstraint(Sketcher.Constraint("Horizontal", 8, 2, 11, 2))
sketch10.addConstraint(Sketcher.Constraint("Horizontal", 14, 2, 17, 2))
sketch10.addConstraint(Sketcher.Constraint("Horizontal", 1, 2, 18, 2))
sketch10.addConstraint(Sketcher.Constraint("Horizontal", 5, 2, 20, 2))
sketch10.addConstraint(Sketcher.Constraint("Horizontal", 4, 2, 21, 2))
sketch10.addConstraint(Sketcher.Constraint("Horizontal", 20, 2, 23, 2))
sketch10.addConstraint(Sketcher.Constraint("Horizontal", 7, 2, 24, 2))
sketch10.addConstraint(Sketcher.Constraint("Horizontal", 11, 2, 26, 2))
sketch10.addConstraint(Sketcher.Constraint("Horizontal", 10, 2, 27, 2))
sketch10.addConstraint(Sketcher.Constraint("Horizontal", 26, 2, 29, 2))
sketch10.addConstraint(Sketcher.Constraint("Horizontal", 13, 2, 30, 2))
sketch10.addConstraint(Sketcher.Constraint("Horizontal", 17, 2, 32, 2))
sketch10.addConstraint(Sketcher.Constraint("Horizontal", 16, 2, 33, 2))
sketch10.addConstraint(Sketcher.Constraint("Horizontal", 32, 2, 35, 2))
sketch10.addConstraint(Sketcher.Constraint("Vertical", 1, 2, 3, 2))
sketch10.addConstraint(Sketcher.Constraint("Vertical", 0, 2, 4, 2))
sketch10.addConstraint(Sketcher.Constraint("Vertical", 4, 2, 6, 2))
sketch10.addConstraint(Sketcher.Constraint("Vertical", 3, 2, 7, 2))
sketch10.addConstraint(Sketcher.Constraint("Vertical", 2, 2, 8, 2))
sketch10.addConstraint(Sketcher.Constraint("Vertical", 7, 2, 9, 2))
sketch10.addConstraint(Sketcher.Constraint("Vertical", 10, 2, 12, 2))
sketch10.addConstraint(Sketcher.Constraint("Vertical", 9, 2, 13, 2))
sketch10.addConstraint(Sketcher.Constraint("Vertical", 8, 2, 14, 2))
sketch10.addConstraint(Sketcher.Constraint("Vertical", 13, 2, 15, 2))
sketch10.addConstraint(Sketcher.Constraint("Vertical", 22, 2, 24, 2))
sketch10.addConstraint(Sketcher.Constraint("Vertical", 21, 2, 25, 2))
sketch10.addConstraint(Sketcher.Constraint("Vertical", 28, 2, 30, 2))
sketch10.addConstraint(Sketcher.Constraint("Vertical", 27, 2, 31, 2))
sketch10.addConstraint(Sketcher.Constraint("Equal", 16, 19))
sketch10.addConstraint(Sketcher.Constraint("DistanceX", 18, 2, 0, 2, Q("2.5 in")))
sketch10.addConstraint(Sketcher.Constraint("DistanceY", 6, 2, 0, 2, Q("0.75 in")))
sketch10.addConstraint(Sketcher.Constraint("DistanceY", 12, 2, 6, 2, Q("0.75 in")))
sketch10.addConstraint(Sketcher.Constraint("DistanceY", -1, 1, 8, 2, Q("1 in")))
sketch10.addConstraint(Sketcher.Constraint("Angle", 0, Q("59.9994 deg")))
sketch10.addConstraint(Sketcher.Constraint("DistanceY", 3, 2, 1, 2, Q("0.375 in")))
sketch10.addConstraint(Sketcher.Constraint("DistanceX", 1, 1, 1, 2, Q("0.2165 in")))
sketch10.addConstraint(Sketcher.Constraint("DistanceX", -1, 1, 5, 2, Q("4.0885 in")))
pocket9 = doc.addObject("PartDesign::Pocket", "Pocket008")
body.addObject(pocket9)
pocket9.Profile = sketch10
pocket9.Length = Q("0.375 in")
pocket9.Reversed = True

doc.recompute()
